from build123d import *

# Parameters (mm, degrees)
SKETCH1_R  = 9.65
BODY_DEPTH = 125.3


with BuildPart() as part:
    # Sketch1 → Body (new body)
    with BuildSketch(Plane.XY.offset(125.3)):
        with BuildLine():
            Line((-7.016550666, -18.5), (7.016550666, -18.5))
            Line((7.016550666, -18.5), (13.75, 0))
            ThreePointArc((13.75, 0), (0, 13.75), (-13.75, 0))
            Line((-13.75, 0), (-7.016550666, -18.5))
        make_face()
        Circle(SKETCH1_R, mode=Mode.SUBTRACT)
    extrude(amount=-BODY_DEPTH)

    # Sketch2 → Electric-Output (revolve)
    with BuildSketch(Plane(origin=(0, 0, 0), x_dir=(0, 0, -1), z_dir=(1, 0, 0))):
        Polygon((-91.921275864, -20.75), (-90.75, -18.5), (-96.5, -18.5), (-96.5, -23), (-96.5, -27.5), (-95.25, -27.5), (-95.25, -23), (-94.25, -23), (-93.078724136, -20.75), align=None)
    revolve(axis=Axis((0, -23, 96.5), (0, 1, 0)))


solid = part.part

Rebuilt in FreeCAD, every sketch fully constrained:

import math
import FreeCAD as App
import Part
import Sketcher

V = App.Vector
Q = App.Units.Quantity

doc = App.newDocument("Part")
body = doc.addObject("PartDesign::Body", "Body")

# Sketch on XY plane
sketch1 = body.newObject("Sketcher::SketchObject", "Sketch")
sketch1.AttachmentSupport = (doc.getObject("XY_Plane"), [""])
sketch1.MapMode = "FlatFace"
sketch1.AttachmentOffset = App.Placement(V(0, 0, 125.3), App.Rotation())
sketch1.addGeometry(Part.LineSegment(V(-7, -18, 0), V(7, -18, 0)), False)
sketch1.addGeometry(Part.LineSegment(V(7, -18, 0), V(14, 0, 0)), False)
sketch1.addGeometry(Part.ArcOfCircle(Part.Circle(V(0, 0, 0), V(0, 0, 1), 14), math.radians(0), math.radians(180)), False)
sketch1.addGeometry(Part.LineSegment(V(-14, 0, 0), V(-7, -18, 0)), False)
sketch1.addGeometry(Part.Circle(V(0, 0, 0), V(0, 0, 1), 10), False)
sketch1.addConstraint(Sketcher.Constraint("Coincident", 0, 2, 1, 1))
sketch1.addConstraint(Sketcher.Constraint("Coincident", 1, 2, 2, 1))
sketch1.addConstraint(Sketcher.Constraint("Coincident", 2, 2, 3, 1))
sketch1.addConstraint(Sketcher.Constraint("Coincident", 3, 2, 0, 1))
sketch1.addConstraint(Sketcher.Constraint("Horizontal", 0))
sketch1.addConstraint(Sketcher.Constraint("Coincident", 2, 3, -1, 1))
sketch1.addConstraint(Sketcher.Constraint("Coincident", 4, 3, -1, 1))
sketch1.addConstraint(Sketcher.Constraint("PointOnObject", 1, 2, -1))
sketch1.addConstraint(Sketcher.Constraint("PointOnObject", 2, 2, -1))
sketch1.addConstraint(Sketcher.Constraint("Equal", 1, 3))
sketch1.addConstraint(Sketcher.Constraint("Diameter", 4, 19.3))
sketch1.addConstraint(Sketcher.Constraint("Angle", 1, Q("70 deg")))
sketch1.addConstraint(Sketcher.Constraint("Radius", 2, 13.75))
sketch1.addConstraint(Sketcher.Constraint("DistanceY", 0, 2, -1, 1, 18.5))
pad1 = body.newObject("PartDesign::Pad", "Pad")
pad1.Profile = sketch1
pad1.Length = 125.3
pad1.Reversed = True

# Sketch on YZ plane
sketch2 = body.newObject("Sketcher::SketchObject", "Sketch001")
sketch2.AttachmentSupport = (doc.getObject("YZ_Plane"), [""])
sketch2.MapMode = "FlatFace"
sketch2.addGeometry(Part.LineSegment(V(-20.8, 91.9, 0), V(-18.5, 90.8, 0)), False)
sketch2.addGeometry(Part.LineSegment(V(-18.5, 90.8, 0), V(-18.5, 96.5, 0)), False)
sketch2.addGeometry(Part.LineSegment(V(-18.5, 96.5, 0), V(-27.5, 96.5, 0)), False)
sketch2.addGeometry(Part.LineSegment(V(-27.5, 96.5, 0), V(-27.5, 95.2, 0)), False)
sketch2.addGeometry(Part.LineSegment(V(-27.5, 95.2, 0), V(-23, 95.2, 0)), False)
sketch2.addGeometry(Part.LineSegment(V(-23, 95.2, 0), V(-23, 94.2, 0)), False)
sketch2.addGeometry(Part.LineSegment(V(-23, 94.2, 0), V(-20.8, 93.1, 0)), False)
sketch2.addGeometry(Part.LineSegment(V(-20.8, 93.1, 0), V(-20.8, 91.9, 0)), False)
sketch2.addGeometry(Part.LineSegment(V(-27.5, 96.5, 0), V(-18.5, 96.5, 0)), True)  # axis
sketch2.addConstraint(Sketcher.Constraint("Coincident", 0, 2, 1, 1))
sketch2.addConstraint(Sketcher.Constraint("Coincident", 1, 2, 2, 1))
sketch2.addConstraint(Sketcher.Constraint("Coincident", 2, 2, 3, 1))
sketch2.addConstraint(Sketcher.Constraint("Coincident", 3, 2, 4, 1))
sketch2.addConstraint(Sketcher.Constraint("Coincident", 4, 2, 5, 1))
sketch2.addConstraint(Sketcher.Constraint("Coincident", 5, 2, 6, 1))
sketch2.addConstraint(Sketcher.Constraint("Coincident", 6, 2, 7, 1))
sketch2.addConstraint(Sketcher.Constraint("Coincident", 7, 2, 0, 1))
sketch2.addConstraint(Sketcher.Constraint("Vertical", 1))
sketch2.addConstraint(Sketcher.Constraint("Horizontal", 2))
sketch2.addConstraint(Sketcher.Constraint("Vertical", 3))
sketch2.addConstraint(Sketcher.Constraint("Horizontal", 4))
sketch2.addConstraint(Sketcher.Constraint("Vertical", 5))
sketch2.addConstraint(Sketcher.Constraint("Vertical", 7))
sketch2.addConstraint(Sketcher.Constraint("Horizontal", 8))
sketch2.addConstraint(Sketcher.Constraint("Coincident", 8, 1, 2, 2))
sketch2.addConstraint(Sketcher.Constraint("Parallel", 0, 6))
sketch2.addConstraint(Sketcher.Constraint("Vertical", 0, 2, 8, 2))
sketch2.addConstraint(Sketcher.Constraint("Equal", 0, 6))
sketch2.addConstraint(Sketcher.Constraint("DistanceX", 2, 2, 2, 1, 9.0))
sketch2.addConstraint(Sketcher.Constraint("DistanceY", 5, 2, 5, 1, 1.0))
sketch2.addConstraint(Sketcher.Constraint("DistanceX", 4, 1, 4, 2, 4.5))
sketch2.addConstraint(Sketcher.Constraint("DistanceX", 4, 2, -1, 1, 23.0))
sketch2.addConstraint(Sketcher.Constraint("Angle", 0, Q("-27.5 deg")))
sketch2.addConstraint(Sketcher.Constraint("DistanceY", 1, 1, 1, 2, 5.75))
sketch2.addConstraint(Sketcher.Constraint("DistanceY", 3, 2, 3, 1, 1.25))
sketch2.addConstraint(Sketcher.Constraint("DistanceY", -1, 1, 1, 2, 96.5))
revolution = body.newObject("PartDesign::Revolution", "Revolution")
revolution.Profile = sketch2
revolution.ReferenceAxis = (sketch2, ["Axis0"])
revolution.Angle = 360

doc.recompute()
